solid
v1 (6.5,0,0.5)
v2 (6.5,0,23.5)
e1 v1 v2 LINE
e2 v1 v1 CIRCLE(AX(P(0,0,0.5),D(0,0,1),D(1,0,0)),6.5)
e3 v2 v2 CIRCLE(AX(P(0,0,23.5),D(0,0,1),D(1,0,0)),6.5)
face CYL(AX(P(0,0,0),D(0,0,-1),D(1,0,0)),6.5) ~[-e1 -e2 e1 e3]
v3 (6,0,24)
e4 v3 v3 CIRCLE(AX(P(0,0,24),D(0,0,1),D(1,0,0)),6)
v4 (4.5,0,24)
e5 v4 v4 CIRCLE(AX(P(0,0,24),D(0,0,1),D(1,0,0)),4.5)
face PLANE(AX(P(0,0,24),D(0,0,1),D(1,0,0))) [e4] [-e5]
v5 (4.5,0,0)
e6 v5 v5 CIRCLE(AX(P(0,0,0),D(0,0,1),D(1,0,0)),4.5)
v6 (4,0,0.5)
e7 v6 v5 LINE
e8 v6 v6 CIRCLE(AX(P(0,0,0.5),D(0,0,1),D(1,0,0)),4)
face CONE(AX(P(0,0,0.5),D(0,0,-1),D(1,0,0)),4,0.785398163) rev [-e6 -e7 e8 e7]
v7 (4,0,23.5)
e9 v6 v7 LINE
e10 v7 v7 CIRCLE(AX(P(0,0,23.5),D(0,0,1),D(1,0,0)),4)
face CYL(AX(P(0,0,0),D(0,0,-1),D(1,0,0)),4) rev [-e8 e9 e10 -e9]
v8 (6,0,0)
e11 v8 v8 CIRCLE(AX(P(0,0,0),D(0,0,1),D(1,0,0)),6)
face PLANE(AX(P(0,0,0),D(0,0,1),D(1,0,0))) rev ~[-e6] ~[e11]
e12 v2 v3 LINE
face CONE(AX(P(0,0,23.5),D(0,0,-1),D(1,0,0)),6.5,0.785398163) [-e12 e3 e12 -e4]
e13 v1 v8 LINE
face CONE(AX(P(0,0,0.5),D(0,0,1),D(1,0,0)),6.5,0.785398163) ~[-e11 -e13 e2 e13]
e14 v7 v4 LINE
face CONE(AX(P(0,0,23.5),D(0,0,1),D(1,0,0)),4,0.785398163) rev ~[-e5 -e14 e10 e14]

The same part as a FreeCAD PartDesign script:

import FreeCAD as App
import Part
import Sketcher
from FreeCAD import Vector


def edges_at(feature, points):
    """Names of the edges that pass closest to the given points."""
    edges = feature.Shape.Edges
    near = lambda p: min(range(len(edges)), key=lambda i: edges[i].distToShape(Part.Vertex(*p))[0])
    return sorted({f"Edge{near(p) + 1}" for p in points})

doc = App.newDocument("Part")
body = doc.addObject("PartDesign::Body", "Body")

sketch1 = doc.addObject("Sketcher::SketchObject", "Sketch")
body.addObject(sketch1)
sketch1.AttachmentSupport = (doc.XY_Plane, [""])
sketch1.MapMode = "FlatFace"
sketch1.addGeometry([
    Part.Circle(Vector(0, 0, 0), Vector(0, 0, 1), 6.5),
    Part.Circle(Vector(0, 0, 0), Vector(0, 0, 1), 4),
], False)
sketch1.addConstraint([
    Sketcher.Constraint("Coincident", 0, 3, -1, 1),
    Sketcher.Constraint("Coincident", 1, 3, -1, 1),
    Sketcher.Constraint("Diameter", 0, 13.0),
    Sketcher.Constraint("Diameter", 1, 8.0),
])
pad1 = doc.addObject("PartDesign::Pad", "Pad")
body.addObject(pad1)
pad1.Profile = sketch1
pad1.Length = 24
doc.recompute()

chamfer = doc.addObject("PartDesign::Chamfer", "Chamfer")
body.addObject(chamfer)
chamfer.Base = (pad1, edges_at(pad1, [
    (-6.5, 0, 24),
    (-4, 0, 24),
    (-6.5, 0, 0),
    (-4, 0, 0),
]))
chamfer.Size = 0.5

doc.recompute()
